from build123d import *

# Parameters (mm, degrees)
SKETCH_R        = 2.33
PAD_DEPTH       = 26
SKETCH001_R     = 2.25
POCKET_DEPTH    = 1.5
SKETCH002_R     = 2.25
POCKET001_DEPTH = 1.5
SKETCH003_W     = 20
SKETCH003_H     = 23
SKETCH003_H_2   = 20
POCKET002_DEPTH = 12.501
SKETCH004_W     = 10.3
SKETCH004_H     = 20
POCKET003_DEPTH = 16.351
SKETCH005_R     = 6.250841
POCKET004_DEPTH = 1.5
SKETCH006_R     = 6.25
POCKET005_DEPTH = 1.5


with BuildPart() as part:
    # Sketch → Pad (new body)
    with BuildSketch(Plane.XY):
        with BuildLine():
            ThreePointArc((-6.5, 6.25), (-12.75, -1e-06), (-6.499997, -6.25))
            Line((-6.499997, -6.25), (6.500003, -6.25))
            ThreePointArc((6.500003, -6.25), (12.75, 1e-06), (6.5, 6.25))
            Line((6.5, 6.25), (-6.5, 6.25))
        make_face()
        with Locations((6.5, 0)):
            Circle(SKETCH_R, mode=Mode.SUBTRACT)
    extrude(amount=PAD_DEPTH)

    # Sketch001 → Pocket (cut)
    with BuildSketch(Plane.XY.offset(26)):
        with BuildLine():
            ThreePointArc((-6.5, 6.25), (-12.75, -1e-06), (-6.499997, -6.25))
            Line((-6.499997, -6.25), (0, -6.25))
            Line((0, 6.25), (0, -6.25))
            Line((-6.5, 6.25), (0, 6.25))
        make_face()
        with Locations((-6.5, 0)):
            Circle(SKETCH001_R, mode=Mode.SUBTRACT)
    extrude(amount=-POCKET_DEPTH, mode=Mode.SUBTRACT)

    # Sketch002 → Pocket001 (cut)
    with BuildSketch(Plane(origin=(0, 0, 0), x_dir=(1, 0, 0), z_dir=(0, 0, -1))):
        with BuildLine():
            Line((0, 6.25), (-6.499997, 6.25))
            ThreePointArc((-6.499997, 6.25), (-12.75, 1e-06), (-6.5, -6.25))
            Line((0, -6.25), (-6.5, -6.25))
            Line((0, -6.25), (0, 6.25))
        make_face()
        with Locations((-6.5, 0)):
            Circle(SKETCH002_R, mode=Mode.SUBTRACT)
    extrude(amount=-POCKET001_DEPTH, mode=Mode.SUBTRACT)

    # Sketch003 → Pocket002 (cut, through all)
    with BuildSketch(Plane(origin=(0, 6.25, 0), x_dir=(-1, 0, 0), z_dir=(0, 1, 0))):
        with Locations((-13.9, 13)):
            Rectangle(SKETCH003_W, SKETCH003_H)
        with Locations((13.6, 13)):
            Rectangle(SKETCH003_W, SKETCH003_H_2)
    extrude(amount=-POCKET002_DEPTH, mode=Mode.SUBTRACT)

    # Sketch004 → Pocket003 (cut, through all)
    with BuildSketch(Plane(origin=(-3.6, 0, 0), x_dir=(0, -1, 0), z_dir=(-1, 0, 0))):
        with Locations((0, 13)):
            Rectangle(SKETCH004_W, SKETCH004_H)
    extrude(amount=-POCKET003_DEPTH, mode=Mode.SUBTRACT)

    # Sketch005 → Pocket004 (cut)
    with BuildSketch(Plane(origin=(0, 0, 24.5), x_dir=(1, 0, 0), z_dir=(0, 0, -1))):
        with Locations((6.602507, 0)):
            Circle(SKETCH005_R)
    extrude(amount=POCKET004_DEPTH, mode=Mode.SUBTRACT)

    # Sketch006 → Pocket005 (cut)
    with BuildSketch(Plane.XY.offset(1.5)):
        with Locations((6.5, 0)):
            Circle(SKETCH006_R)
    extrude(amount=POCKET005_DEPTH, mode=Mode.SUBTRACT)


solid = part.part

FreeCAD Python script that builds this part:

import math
import FreeCAD as App
import Part
import Sketcher

V = App.Vector
Q = App.Units.Quantity


def add_polygon(sketch, points):
    """Adds a closed chain of lines whose ends are joined by coincident constraints."""
    first, n = sketch.GeometryCount, len(points)
    for a, b in zip(points, points[1:] + points[:1]):
        sketch.addGeometry(Part.LineSegment(App.Vector(*a, 0), App.Vector(*b, 0)), False)
    for i in range(n):
        sketch.addConstraint(Sketcher.Constraint("Coincident", first + i, 2, first + (i + 1) % n, 1))

doc = App.newDocument("Part")
body = doc.addObject("PartDesign::Body", "Body")

# Sketch on XY plane
sketch1 = doc.addObject("Sketcher::SketchObject", "Sketch")
body.addObject(sketch1)
sketch1.AttachmentSupport = (doc.XY_Plane, [""])
sketch1.MapMode = "FlatFace"
sketch1.addGeometry(Part.ArcOfCircle(Part.Circle(V(-6.5, 0, 0), V(0, 0, 1), 6.2), math.radians(90), math.radians(270)), False)
sketch1.addGeometry(Part.LineSegment(V(-6.5, -6.2, 0), V(6.5, -6.2, 0)), False)
sketch1.addGeometry(Part.ArcOfCircle(Part.Circle(V(6.5, 0, 0), V(0, 0, 1), 6.2), math.radians(-90), math.radians(90)), False)
sketch1.addGeometry(Part.LineSegment(V(6.5, 6.2, 0), V(-6.5, 6.2, 0)), False)
sketch1.addGeometry(Part.Circle(V(6.5, 0, 0), V(0, 0, 1), 2.3), False)
sketch1.addConstraint(Sketcher.Constraint("Tangent", 0, 2, 1, 1))
sketch1.addConstraint(Sketcher.Constraint("Tangent", 1, 2, 2, 1))
sketch1.addConstraint(Sketcher.Constraint("Tangent", 2, 2, 3, 1))
sketch1.addConstraint(Sketcher.Constraint("Tangent", 3, 2, 0, 1))
sketch1.addConstraint(Sketcher.Constraint("Horizontal", 1))
sketch1.addConstraint(Sketcher.Constraint("Horizontal", 3))
sketch1.addConstraint(Sketcher.Constraint("Coincident", 4, 3, 2, 3))
sketch1.addConstraint(Sketcher.Constraint("Symmetric", 0, 3, 2, 3, -1, 1))
sketch1.addConstraint(Sketcher.Constraint("Diameter", 4, Q("4.66 mm")))
sketch1.addConstraint(Sketcher.Constraint("DistanceX", 1, 1, 1, 2, Q("13 mm")))
sketch1.addConstraint(Sketcher.Constraint("Radius", 0, Q("6.25 mm")))
pad1 = doc.addObject("PartDesign::Pad", "Pad")
body.addObject(pad1)
pad1.Profile = sketch1
pad1.Length = 26

# Sketch on XY plane
sketch2 = doc.addObject("Sketcher::SketchObject", "Sketch001")
body.addObject(sketch2)
sketch2.AttachmentSupport = (doc.XY_Plane, [""])
sketch2.MapMode = "FlatFace"
sketch2.AttachmentOffset = App.Placement(V(0, 0, 26), App.Rotation())
sketch2.addGeometry(Part.ArcOfCircle(Part.Circle(V(-6.5, 0, 0), V(0, 0, 1), 6.2), math.radians(90), math.radians(270)), False)
sketch2.addGeometry(Part.LineSegment(V(-6.5, -6.2, 0), V(0, -6.2, 0)), False)
sketch2.addGeometry(Part.LineSegment(V(0, -6.2, 0), V(0, 6.2, 0)), False)
sketch2.addGeometry(Part.LineSegment(V(0, 6.2, 0), V(-6.5, 6.2, 0)), False)
sketch2.addGeometry(Part.Circle(V(-6.5, 0, 0), V(0, 0, 1), 2.2), False)
sketch2.addConstraint(Sketcher.Constraint("Tangent", 0, 2, 1, 1))
sketch2.addConstraint(Sketcher.Constraint("Coincident", 1, 2, 2, 1))
sketch2.addConstraint(Sketcher.Constraint("Coincident", 2, 2, 3, 1))
sketch2.addConstraint(Sketcher.Constraint("Tangent", 3, 2, 0, 1))
sketch2.addConstraint(Sketcher.Constraint("Horizontal", 1))
sketch2.addConstraint(Sketcher.Constraint("Vertical", 2))
sketch2.addConstraint(Sketcher.Constraint("Horizontal", 3))
sketch2.addConstraint(Sketcher.Constraint("Coincident", 4, 3, 0, 3))
sketch2.addConstraint(Sketcher.Constraint("Symmetric", 1, 2, 2, 2, -1, 1))
sketch2.addConstraint(Sketcher.Constraint("Diameter", 4, Q("4.5 mm")))
sketch2.addConstraint(Sketcher.Constraint("Radius", 0, Q("6.25 mm")))
sketch2.addConstraint(Sketcher.Constraint("DistanceX", 3, 2, 3, 1, Q("6.5 mm")))
pocket1 = doc.addObject("PartDesign::Pocket", "Pocket")
body.addObject(pocket1)
pocket1.Profile = sketch2
pocket1.Length = 1.5

# Sketch on XY plane
sketch3 = doc.addObject("Sketcher::SketchObject", "Sketch002")
body.addObject(sketch3)
sketch3.AttachmentSupport = (doc.XY_Plane, [""])
sketch3.MapMode = "FlatFace"
sketch3.addGeometry(Part.LineSegment(V(0, -6.2, 0), V(-6.5, -6.2, 0)), False)
sketch3.addGeometry(Part.ArcOfCircle(Part.Circle(V(-6.5, 0, 0), V(0, 0, 1), 6.2), math.radians(90), math.radians(270)), False)
sketch3.addGeometry(Part.LineSegment(V(-6.5, 6.2, 0), V(0, 6.2, 0)), False)
sketch3.addGeometry(Part.LineSegment(V(0, 6.2, 0), V(0, -6.2, 0)), False)
sketch3.addGeometry(Part.Circle(V(-6.5, 0, 0), V(0, 0, 1), 2.2), False)
sketch3.addConstraint(Sketcher.Constraint("Tangent", 0, 2, 1, 2))
sketch3.addConstraint(Sketcher.Constraint("Tangent", 1, 1, 2, 1))
sketch3.addConstraint(Sketcher.Constraint("Coincident", 2, 2, 3, 1))
sketch3.addConstraint(Sketcher.Constraint("Coincident", 3, 2, 0, 1))
sketch3.addConstraint(Sketcher.Constraint("Horizontal", 0))
sketch3.addConstraint(Sketcher.Constraint("Horizontal", 2))
sketch3.addConstraint(Sketcher.Constraint("Vertical", 3))
sketch3.addConstraint(Sketcher.Constraint("Coincident", 4, 3, 1, 3))
sketch3.addConstraint(Sketcher.Constraint("Symmetric", 2, 2, 3, 2, -1, 1))
sketch3.addConstraint(Sketcher.Constraint("Diameter", 4, Q("4.5 mm")))
sketch3.addConstraint(Sketcher.Constraint("Radius", 1, Q("6.25 mm")))
sketch3.addConstraint(Sketcher.Constraint("DistanceX", 2, 1, 2, 2, Q("6.5 mm")))
pocket2 = doc.addObject("PartDesign::Pocket", "Pocket001")
body.addObject(pocket2)
pocket2.Profile = sketch3
pocket2.Length = 1.5
pocket2.Reversed = True

# Sketch on XZ plane
sketch4 = doc.addObject("Sketcher::SketchObject", "Sketch003")
body.addObject(sketch4)
sketch4.AttachmentSupport = (doc.XZ_Plane, [""])
sketch4.MapMode = "FlatFace"
sketch4.AttachmentOffset = App.Placement(V(0, 0, -6.25), App.Rotation())
add_polygon(sketch4, [(24, 24), (24, 2), (4, 2), (4, 24)])  # lines 0-3
add_polygon(sketch4, [(-4, 23), (-4, 3), (-24, 3), (-24, 23)])  # lines 4-7
sketch4.addConstraint(Sketcher.Constraint("Vertical", 0))
sketch4.addConstraint(Sketcher.Constraint("Horizontal", 1))
sketch4.addConstraint(Sketcher.Constraint("Vertical", 2))
sketch4.addConstraint(Sketcher.Constraint("Horizontal", 3))
sketch4.addConstraint(Sketcher.Constraint("Vertical", 4))
sketch4.addConstraint(Sketcher.Constraint("Horizontal", 5))
sketch4.addConstraint(Sketcher.Constraint("Vertical", 6))
sketch4.addConstraint(Sketcher.Constraint("Horizontal", 7))
sketch4.addConstraint(Sketcher.Constraint("Equal", 3, 5))
sketch4.addConstraint(Sketcher.Constraint("Equal", 7, 4))
sketch4.addConstraint(Sketcher.Constraint("DistanceX", 1, 2, 1, 1, Q("20 mm")))
sketch4.addConstraint(Sketcher.Constraint("DistanceY", 0, 2, 0, 1, Q("23 mm")))
sketch4.addConstraint(Sketcher.Constraint("DistanceY", -1, 1, 4, 2, Q("3 mm")))
sketch4.addConstraint(Sketcher.Constraint("DistanceX", -1, 1, 0, 2, Q("23.9 mm")))
sketch4.addConstraint(Sketcher.Constraint("DistanceY", -1, 1, 0, 2, Q("1.5 mm")))
sketch4.addConstraint(Sketcher.Constraint("DistanceX", 4, 2, -1, 1, Q("3.6 mm")))
pocket3 = doc.addObject("PartDesign::Pocket", "Pocket002")
body.addObject(pocket3)
pocket3.Profile = sketch4
pocket3.Type = "ThroughAll"
pocket3.Reversed = True

# Sketch on YZ plane
sketch5 = doc.addObject("Sketcher::SketchObject", "Sketch004")
body.addObject(sketch5)
sketch5.AttachmentSupport = (doc.YZ_Plane, [""])
sketch5.MapMode = "FlatFace"
sketch5.AttachmentOffset = App.Placement(V(0, 0, -3.6), App.Rotation())
add_polygon(sketch5, [(5, 23), (5, 3), (-5, 3), (-5, 23)])  # lines 0-3
sketch5.addConstraint(Sketcher.Constraint("Vertical", 0))
sketch5.addConstraint(Sketcher.Constraint("Horizontal", 1))
sketch5.addConstraint(Sketcher.Constraint("Vertical", 2))
sketch5.addConstraint(Sketcher.Constraint("Horizontal", 3))
sketch5.addConstraint(Sketcher.Constraint("DistanceY", 0, 2, 0, 1, Q("20 mm")))
sketch5.addConstraint(Sketcher.Constraint("DistanceX", 1, 2, 1, 1, Q("10.3 mm")))
sketch5.addConstraint(Sketcher.Constraint("DistanceY", -1, 1, 0, 2, Q("3 mm")))
sketch5.addConstraint(Sketcher.Constraint("DistanceX", -1, 1, 0, 2, Q("5.15 mm")))
pocket4 = doc.addObject("PartDesign::Pocket", "Pocket003")
body.addObject(pocket4)
pocket4.Profile = sketch5
pocket4.Type = "ThroughAll"
pocket4.Reversed = True

# Sketch on XY plane
sketch6 = doc.addObject("Sketcher::SketchObject", "Sketch005")
body.addObject(sketch6)
sketch6.AttachmentSupport = (doc.XY_Plane, [""])
sketch6.MapMode = "FlatFace"
sketch6.AttachmentOffset = App.Placement(V(0, 0, 24.5), App.Rotation())
sketch6.addGeometry(Part.Circle(V(7, 0, 0), V(0, 0, 1), 6), False)
sketch6.addConstraint(Sketcher.Constraint("PointOnObject", 0, 3, -1))
sketch6.addConstraint(Sketcher.Constraint("Diameter", 0, Q("12.501682 mm")))
sketch6.addConstraint(Sketcher.Constraint("DistanceX", -1, 1, 0, 3, Q("6.602507 mm")))
pocket5 = doc.addObject("PartDesign::Pocket", "Pocket004")
body.addObject(pocket5)
pocket5.Profile = sketch6
pocket5.Length = 1.5

# Sketch on XY plane
sketch7 = doc.addObject("Sketcher::SketchObject", "Sketch006")
body.addObject(sketch7)
sketch7.AttachmentSupport = (doc.XY_Plane, [""])
sketch7.MapMode = "FlatFace"
sketch7.AttachmentOffset = App.Placement(V(0, 0, 1.5), App.Rotation())
sketch7.addGeometry(Part.Circle(V(6, 0, 0), V(0, 0, 1), 6), False)
sketch7.addConstraint(Sketcher.Constraint("PointOnObject", 0, 3, -1))
sketch7.addConstraint(Sketcher.Constraint("Diameter", 0, Q("12.5 mm")))
sketch7.addConstraint(Sketcher.Constraint("DistanceX", -1, 1, 0, 3, Q("6.5 mm")))
pocket6 = doc.addObject("PartDesign::Pocket", "Pocket005")
body.addObject(pocket6)
pocket6.Profile = sketch7
pocket6.Length = 1.5
pocket6.Reversed = True

doc.recompute()
